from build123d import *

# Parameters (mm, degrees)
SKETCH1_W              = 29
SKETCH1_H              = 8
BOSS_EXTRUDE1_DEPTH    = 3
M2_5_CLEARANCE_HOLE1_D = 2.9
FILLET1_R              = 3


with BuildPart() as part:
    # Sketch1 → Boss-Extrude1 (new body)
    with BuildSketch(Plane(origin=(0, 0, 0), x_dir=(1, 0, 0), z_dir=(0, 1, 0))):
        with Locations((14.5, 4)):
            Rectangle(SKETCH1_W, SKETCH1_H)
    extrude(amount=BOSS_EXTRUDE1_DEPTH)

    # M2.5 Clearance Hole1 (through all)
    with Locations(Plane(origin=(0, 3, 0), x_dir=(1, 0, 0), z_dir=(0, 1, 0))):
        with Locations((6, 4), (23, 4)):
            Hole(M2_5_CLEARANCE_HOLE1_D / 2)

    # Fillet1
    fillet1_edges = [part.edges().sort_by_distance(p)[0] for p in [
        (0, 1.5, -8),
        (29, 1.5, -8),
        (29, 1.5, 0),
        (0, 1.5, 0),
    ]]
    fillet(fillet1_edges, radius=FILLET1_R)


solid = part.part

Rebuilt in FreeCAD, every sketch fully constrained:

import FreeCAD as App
import Part
import Sketcher
from FreeCAD import Vector


def edges_at(feature, points):
    """Names of the edges that pass closest to the given points."""
    edges = feature.Shape.Edges
    near = lambda p: min(range(len(edges)), key=lambda i: edges[i].distToShape(Part.Vertex(*p))[0])
    return sorted({f"Edge{near(p) + 1}" for p in points})


def add_polygon(sketch, points):
    """Adds a closed chain of lines whose ends are joined by coincident constraints."""
    first, n = sketch.GeometryCount, len(points)
    for a, b in zip(points, points[1:] + points[:1]):
        sketch.addGeometry(Part.LineSegment(App.Vector(*a, 0), App.Vector(*b, 0)), False)
    for i in range(n):
        sketch.addConstraint(Sketcher.Constraint("Coincident", first + i, 2, first + (i + 1) % n, 1))

doc = App.newDocument("Part")
body = doc.addObject("PartDesign::Body", "Body")

# Sketch on XZ plane
sketch1 = body.newObject("Sketcher::SketchObject", "Sketch")
sketch1.AttachmentSupport = (doc.getObject("XZ_Plane"), [""])
sketch1.MapMode = "FlatFace"
add_polygon(sketch1, [(0, -8), (0, 0), (29, 0), (29, -8)])  # lines 0-3
sketch1.addConstraint([
    Sketcher.Constraint("Vertical", 0),
    Sketcher.Constraint("Horizontal", 1),
    Sketcher.Constraint("Vertical", 2),
    Sketcher.Constraint("Horizontal", 3),
    Sketcher.Constraint("Coincident", 0, 2, -1, 1),
    Sketcher.Constraint("DistanceX", 1, 1, 1, 2, 29.0),
    Sketcher.Constraint("DistanceY", 0, 1, 0, 2, 8.0),
])
pad1 = body.newObject("PartDesign::Pad", "Pad")
pad1.Profile = sketch1
pad1.Length = 3
pad1.Reversed = True

# Sketch on XZ plane
sketch2 = body.newObject("Sketcher::SketchObject", "Sketch001")
sketch2.AttachmentSupport = (doc.getObject("XZ_Plane"), [""])
sketch2.MapMode = "FlatFace"
sketch2.AttachmentOffset = App.Placement(Vector(0, 0, -3), App.Rotation())
sketch2.addGeometry([
    Part.Circle(Vector(6, -4, 0), Vector(0, 0, 1), 1.4),
    Part.Circle(Vector(23, -4, 0), Vector(0, 0, 1), 1.4),
], False)
sketch2.addConstraint([
    Sketcher.Constraint("Equal", 0, 1),
    Sketcher.Constraint("Horizontal", 0, 3, 1, 3),
    Sketcher.Constraint("Diameter", 0, 2.9),
    Sketcher.Constraint("DistanceX", -1, 1, 0, 3, 6.0),
    Sketcher.Constraint("DistanceY", 0, 3, -1, 1, 4.0),
    Sketcher.Constraint("DistanceX", -1, 1, 1, 3, 23.0),
])
doc.recompute()
hole = body.newObject("PartDesign::Hole", "Hole")
hole.Profile = sketch2
hole.ThreadType = "None"
hole.Diameter = 2.9
hole.DepthType = "ThroughAll"
hole.Reversed = True
doc.recompute()

fillet = body.newObject("PartDesign::Fillet", "Fillet")
fillet.Base = (hole, edges_at(hole, [
    (0, 1.5, -8),
    (29, 1.5, -8),
    (29, 1.5, 0),
    (0, 1.5, 0),
]))
fillet.Radius = 3

doc.recompute()
